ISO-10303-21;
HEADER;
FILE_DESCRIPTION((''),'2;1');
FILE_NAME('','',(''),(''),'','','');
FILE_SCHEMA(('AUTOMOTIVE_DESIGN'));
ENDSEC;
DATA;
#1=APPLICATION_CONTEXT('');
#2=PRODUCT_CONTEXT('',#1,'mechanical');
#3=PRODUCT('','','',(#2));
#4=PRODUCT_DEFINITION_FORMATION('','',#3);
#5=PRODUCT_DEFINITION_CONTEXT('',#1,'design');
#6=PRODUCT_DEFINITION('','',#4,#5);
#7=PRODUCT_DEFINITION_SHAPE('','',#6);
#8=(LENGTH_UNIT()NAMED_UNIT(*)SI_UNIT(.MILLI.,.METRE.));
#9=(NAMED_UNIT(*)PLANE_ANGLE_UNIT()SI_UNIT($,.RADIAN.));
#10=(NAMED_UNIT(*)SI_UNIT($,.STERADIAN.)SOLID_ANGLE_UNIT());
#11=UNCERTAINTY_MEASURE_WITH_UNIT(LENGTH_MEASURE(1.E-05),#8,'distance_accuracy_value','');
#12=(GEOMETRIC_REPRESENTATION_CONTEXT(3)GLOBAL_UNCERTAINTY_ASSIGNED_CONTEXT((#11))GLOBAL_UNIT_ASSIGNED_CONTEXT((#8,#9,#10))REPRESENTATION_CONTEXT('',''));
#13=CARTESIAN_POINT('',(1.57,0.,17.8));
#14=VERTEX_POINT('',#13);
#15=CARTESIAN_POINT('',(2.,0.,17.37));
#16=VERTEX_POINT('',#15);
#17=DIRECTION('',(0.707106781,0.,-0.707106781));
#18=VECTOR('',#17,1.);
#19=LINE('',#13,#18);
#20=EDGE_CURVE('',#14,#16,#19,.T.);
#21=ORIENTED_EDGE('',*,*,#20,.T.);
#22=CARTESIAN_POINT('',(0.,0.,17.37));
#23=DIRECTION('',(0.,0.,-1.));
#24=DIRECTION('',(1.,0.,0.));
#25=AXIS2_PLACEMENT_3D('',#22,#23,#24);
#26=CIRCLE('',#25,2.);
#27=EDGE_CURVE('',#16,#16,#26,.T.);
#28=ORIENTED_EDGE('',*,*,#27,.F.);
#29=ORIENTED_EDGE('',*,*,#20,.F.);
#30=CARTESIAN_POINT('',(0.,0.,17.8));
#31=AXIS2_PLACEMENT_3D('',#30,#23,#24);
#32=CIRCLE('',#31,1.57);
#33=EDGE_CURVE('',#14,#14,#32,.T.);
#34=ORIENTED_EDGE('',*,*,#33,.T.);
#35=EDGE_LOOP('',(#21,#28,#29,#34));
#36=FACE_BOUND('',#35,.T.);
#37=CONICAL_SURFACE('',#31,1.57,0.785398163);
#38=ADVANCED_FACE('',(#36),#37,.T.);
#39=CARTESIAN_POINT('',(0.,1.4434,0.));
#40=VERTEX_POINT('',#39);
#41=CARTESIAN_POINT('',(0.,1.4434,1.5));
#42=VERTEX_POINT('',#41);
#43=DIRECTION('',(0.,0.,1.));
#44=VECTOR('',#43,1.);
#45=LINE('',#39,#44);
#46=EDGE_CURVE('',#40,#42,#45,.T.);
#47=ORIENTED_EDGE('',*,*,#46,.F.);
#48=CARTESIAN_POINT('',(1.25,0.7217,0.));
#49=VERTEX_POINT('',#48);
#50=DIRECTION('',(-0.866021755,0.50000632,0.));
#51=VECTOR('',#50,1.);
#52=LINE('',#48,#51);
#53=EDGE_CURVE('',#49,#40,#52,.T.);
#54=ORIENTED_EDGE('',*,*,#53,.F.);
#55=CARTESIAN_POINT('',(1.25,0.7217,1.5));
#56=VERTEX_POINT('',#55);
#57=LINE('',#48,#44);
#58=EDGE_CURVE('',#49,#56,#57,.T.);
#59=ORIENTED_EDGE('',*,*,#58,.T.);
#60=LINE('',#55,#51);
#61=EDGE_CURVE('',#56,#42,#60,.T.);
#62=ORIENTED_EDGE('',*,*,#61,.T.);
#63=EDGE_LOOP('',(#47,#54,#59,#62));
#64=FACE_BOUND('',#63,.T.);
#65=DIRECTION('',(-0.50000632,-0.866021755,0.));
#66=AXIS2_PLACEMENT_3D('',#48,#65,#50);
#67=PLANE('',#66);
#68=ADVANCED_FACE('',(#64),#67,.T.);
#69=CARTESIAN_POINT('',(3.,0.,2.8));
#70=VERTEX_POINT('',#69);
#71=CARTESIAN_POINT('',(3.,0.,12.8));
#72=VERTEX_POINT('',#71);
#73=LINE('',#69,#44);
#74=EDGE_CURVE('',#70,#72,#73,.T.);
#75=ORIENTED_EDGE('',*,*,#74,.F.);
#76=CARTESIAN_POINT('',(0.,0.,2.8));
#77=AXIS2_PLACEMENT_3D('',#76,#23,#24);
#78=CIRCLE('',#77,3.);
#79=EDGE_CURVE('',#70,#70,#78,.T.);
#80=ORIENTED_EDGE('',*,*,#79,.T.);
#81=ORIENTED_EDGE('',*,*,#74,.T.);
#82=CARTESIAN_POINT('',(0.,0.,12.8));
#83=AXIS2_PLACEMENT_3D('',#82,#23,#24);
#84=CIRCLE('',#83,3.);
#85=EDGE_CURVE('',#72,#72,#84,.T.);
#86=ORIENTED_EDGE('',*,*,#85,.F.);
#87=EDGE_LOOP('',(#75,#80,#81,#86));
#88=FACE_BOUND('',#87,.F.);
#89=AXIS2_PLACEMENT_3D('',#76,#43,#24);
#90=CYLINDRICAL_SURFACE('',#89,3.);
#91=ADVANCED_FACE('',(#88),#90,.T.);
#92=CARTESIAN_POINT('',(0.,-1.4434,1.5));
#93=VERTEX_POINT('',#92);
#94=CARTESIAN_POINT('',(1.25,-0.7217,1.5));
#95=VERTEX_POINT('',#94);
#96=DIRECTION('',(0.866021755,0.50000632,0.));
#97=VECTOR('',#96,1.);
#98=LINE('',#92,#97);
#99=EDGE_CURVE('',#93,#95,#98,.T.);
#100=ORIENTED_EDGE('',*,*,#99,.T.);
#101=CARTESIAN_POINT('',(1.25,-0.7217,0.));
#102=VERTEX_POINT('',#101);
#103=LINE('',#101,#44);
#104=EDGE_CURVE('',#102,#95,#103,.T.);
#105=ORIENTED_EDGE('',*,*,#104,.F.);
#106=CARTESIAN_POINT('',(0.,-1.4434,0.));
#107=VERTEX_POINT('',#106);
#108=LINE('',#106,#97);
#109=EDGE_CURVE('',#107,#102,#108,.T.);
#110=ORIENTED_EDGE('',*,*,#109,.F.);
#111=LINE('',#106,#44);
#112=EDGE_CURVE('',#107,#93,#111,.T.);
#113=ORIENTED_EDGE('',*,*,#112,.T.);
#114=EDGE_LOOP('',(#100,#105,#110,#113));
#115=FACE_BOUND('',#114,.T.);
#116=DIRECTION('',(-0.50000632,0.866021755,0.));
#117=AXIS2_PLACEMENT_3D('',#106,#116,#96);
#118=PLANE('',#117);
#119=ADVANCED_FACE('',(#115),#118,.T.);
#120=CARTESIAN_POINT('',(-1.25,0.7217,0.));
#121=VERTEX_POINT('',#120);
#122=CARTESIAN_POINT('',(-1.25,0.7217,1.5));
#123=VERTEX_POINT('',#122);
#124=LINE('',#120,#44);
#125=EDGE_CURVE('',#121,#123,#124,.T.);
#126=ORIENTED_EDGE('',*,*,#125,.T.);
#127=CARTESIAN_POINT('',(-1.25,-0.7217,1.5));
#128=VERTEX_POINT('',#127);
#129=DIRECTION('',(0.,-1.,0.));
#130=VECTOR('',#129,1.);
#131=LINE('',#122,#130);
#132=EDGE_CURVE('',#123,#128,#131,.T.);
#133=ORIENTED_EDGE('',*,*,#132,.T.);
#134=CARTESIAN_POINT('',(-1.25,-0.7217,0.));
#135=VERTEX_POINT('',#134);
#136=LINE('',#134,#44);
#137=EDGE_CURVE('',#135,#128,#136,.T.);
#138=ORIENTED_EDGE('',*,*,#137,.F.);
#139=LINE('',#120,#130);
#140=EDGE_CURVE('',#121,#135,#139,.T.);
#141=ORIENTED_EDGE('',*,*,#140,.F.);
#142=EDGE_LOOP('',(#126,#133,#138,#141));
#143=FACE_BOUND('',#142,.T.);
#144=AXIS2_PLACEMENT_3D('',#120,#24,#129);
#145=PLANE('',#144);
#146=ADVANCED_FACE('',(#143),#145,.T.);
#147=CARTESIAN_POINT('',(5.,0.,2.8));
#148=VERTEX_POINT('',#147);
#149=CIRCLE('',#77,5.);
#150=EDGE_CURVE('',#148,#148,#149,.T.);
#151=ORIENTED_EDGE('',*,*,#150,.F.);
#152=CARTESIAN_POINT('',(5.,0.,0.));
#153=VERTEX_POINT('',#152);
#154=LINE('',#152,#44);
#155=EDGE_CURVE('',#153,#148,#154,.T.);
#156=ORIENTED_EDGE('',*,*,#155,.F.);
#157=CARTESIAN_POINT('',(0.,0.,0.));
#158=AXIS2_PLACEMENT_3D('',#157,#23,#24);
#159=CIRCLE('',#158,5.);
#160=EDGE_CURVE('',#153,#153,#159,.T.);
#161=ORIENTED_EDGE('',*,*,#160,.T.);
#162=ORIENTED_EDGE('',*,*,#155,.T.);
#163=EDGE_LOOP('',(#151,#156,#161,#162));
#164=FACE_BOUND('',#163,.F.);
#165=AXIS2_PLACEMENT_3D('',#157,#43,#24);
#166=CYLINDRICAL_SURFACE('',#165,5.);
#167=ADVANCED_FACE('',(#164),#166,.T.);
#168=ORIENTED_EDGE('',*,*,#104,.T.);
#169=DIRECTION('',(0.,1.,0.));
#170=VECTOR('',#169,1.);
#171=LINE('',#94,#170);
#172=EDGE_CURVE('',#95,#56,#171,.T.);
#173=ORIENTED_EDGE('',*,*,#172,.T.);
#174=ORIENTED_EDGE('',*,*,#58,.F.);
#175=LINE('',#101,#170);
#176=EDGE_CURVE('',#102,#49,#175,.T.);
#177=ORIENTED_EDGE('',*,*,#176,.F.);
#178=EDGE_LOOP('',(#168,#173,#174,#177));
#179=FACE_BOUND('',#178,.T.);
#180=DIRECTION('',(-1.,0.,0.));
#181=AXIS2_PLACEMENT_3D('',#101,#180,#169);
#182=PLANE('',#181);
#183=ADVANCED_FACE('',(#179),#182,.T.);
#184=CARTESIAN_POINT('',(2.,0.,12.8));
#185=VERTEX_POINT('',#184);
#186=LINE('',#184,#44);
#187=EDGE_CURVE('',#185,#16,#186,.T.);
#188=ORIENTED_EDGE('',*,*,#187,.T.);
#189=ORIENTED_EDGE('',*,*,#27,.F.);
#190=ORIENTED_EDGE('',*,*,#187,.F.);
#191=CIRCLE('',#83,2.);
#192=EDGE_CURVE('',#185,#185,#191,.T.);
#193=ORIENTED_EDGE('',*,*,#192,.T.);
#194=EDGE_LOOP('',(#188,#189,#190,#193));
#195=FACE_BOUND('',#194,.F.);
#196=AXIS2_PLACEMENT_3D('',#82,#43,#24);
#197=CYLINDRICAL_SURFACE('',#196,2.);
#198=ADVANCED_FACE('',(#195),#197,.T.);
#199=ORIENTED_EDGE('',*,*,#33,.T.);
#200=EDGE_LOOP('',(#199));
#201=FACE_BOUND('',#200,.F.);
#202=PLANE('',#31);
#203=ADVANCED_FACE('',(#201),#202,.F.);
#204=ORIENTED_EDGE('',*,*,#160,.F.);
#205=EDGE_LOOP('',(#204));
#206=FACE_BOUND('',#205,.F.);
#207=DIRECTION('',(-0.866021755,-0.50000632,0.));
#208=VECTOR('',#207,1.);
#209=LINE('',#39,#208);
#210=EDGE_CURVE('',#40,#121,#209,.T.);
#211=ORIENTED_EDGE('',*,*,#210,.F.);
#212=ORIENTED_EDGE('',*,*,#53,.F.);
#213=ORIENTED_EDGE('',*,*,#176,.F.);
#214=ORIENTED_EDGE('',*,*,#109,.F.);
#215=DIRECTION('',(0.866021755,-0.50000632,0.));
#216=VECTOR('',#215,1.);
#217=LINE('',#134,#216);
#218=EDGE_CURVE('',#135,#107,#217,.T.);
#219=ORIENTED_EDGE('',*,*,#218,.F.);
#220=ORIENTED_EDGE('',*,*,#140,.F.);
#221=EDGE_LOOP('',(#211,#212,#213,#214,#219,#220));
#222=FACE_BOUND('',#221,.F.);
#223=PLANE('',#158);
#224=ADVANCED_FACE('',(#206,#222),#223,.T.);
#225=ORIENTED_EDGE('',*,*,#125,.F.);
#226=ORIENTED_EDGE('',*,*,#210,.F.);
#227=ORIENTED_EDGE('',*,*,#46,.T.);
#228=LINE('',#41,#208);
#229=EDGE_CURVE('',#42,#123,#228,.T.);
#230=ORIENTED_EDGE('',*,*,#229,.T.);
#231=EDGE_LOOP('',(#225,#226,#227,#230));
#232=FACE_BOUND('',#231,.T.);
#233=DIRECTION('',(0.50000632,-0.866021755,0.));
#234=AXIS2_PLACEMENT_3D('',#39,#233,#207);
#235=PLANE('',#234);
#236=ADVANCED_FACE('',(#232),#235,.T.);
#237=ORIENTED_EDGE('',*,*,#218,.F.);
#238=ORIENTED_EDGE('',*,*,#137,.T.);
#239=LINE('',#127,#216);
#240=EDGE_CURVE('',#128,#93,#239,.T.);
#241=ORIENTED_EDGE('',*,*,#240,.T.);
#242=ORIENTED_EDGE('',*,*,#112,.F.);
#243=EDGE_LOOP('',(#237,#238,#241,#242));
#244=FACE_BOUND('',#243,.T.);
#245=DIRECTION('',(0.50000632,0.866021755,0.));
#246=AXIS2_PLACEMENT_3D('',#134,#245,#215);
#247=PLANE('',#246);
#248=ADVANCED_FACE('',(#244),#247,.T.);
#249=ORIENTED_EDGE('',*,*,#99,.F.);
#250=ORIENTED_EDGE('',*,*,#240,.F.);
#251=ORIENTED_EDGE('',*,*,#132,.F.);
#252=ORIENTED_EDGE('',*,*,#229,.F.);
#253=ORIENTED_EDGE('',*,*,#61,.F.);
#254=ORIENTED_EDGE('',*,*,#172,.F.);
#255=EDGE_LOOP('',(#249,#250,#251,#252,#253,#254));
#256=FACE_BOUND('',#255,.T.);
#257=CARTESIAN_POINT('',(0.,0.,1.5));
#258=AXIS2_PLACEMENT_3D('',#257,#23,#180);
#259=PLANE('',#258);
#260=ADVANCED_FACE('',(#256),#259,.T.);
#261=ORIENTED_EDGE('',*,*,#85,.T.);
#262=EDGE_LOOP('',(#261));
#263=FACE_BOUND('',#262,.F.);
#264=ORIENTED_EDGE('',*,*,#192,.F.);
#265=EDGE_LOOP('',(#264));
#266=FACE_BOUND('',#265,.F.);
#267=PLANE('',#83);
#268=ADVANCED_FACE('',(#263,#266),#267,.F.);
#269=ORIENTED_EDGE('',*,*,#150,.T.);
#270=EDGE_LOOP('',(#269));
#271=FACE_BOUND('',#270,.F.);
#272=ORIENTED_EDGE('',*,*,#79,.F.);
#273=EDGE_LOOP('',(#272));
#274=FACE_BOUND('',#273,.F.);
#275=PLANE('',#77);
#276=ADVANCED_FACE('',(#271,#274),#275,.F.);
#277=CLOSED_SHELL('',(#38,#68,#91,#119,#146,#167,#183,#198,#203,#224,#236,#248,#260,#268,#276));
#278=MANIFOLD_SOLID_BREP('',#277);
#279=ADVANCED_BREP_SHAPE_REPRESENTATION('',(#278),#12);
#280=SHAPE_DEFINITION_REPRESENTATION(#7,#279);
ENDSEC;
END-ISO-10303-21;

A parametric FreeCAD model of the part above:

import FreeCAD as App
import Part
import Sketcher
from FreeCAD import Vector
Q = App.Units.Quantity


def add_polygon(sketch, points):
    """Adds a closed chain of lines whose ends are joined by coincident constraints."""
    first, n = sketch.GeometryCount, len(points)
    for a, b in zip(points, points[1:] + points[:1]):
        sketch.addGeometry(Part.LineSegment(App.Vector(*a, 0), App.Vector(*b, 0)), False)
    for i in range(n):
        sketch.addConstraint(Sketcher.Constraint("Coincident", first + i, 2, first + (i + 1) % n, 1))

doc = App.newDocument("Part")
body = doc.addObject("PartDesign::Body", "Body")

# Sketch on XZ plane
sketch1 = body.newObject("Sketcher::SketchObject", "Sketch")
sketch1.AttachmentSupport = (doc.getObject("XZ_Plane"), [""])
sketch1.MapMode = "FlatFace"
add_polygon(sketch1, [(5, 0), (0, 0), (0, 17.8), (1.6, 17.8), (2, 17.4), (2, 12.8), (3, 12.8), (3, 2.8), (5, 2.8)])  # lines 0-8
sketch1.addConstraint(Sketcher.Constraint("Horizontal", 0))
sketch1.addConstraint(Sketcher.Constraint("Vertical", 1))
sketch1.addConstraint(Sketcher.Constraint("Horizontal", 2))
sketch1.addConstraint(Sketcher.Constraint("Vertical", 4))
sketch1.addConstraint(Sketcher.Constraint("Horizontal", 5))
sketch1.addConstraint(Sketcher.Constraint("Vertical", 6))
sketch1.addConstraint(Sketcher.Constraint("Horizontal", 7))
sketch1.addConstraint(Sketcher.Constraint("Vertical", 8))
sketch1.addConstraint(Sketcher.Constraint("Coincident", 0, 2, -1, 1))
sketch1.addConstraint(Sketcher.Constraint("DistanceX", 0, 2, 0, 1, Q("5 mm")))
sketch1.addConstraint(Sketcher.Constraint("DistanceY", 6, 2, 6, 1, Q("10 mm")))
sketch1.addConstraint(Sketcher.Constraint("DistanceY", 8, 2, 8, 1, Q("2.8 mm")))
sketch1.addConstraint(Sketcher.Constraint("DistanceY", 4, 2, 2, 2, Q("5 mm")))
sketch1.addConstraint(Sketcher.Constraint("DistanceX", 5, 1, 5, 2, Q("1 mm")))
sketch1.addConstraint(Sketcher.Constraint("DistanceX", 7, 1, 7, 2, Q("2 mm")))
sketch1.addConstraint(Sketcher.Constraint("Angle", 3, Q("-45 deg")))
sketch1.addConstraint(Sketcher.Constraint("DistanceX", 2, 2, 3, 2, Q("0.43 mm")))
revolution = body.newObject("PartDesign::Revolution", "Revolution")
revolution.Profile = sketch1
revolution.ReferenceAxis = (sketch1, ["V_Axis"])
revolution.Angle = 360

# Sketch on XY plane
sketch2 = body.newObject("Sketcher::SketchObject", "Sketch001")
sketch2.AttachmentSupport = (doc.getObject("XY_Plane"), [""])
sketch2.MapMode = "FlatFace"
add_polygon(sketch2, [(1.2, -0.7), (0, -1.4), (-1.2, -0.7), (-1.2, 0.7), (0, 1.4), (1.2, 0.7)])  # lines 0-5
sketch2.addConstraint(Sketcher.Constraint("Vertical", 2))
sketch2.addConstraint(Sketcher.Constraint("Vertical", 5))
sketch2.addConstraint(Sketcher.Constraint("Symmetric", 0, 2, 3, 2, -1, 1))
sketch2.addConstraint(Sketcher.Constraint("Symmetric", 1, 2, 4, 2, -1, 1))
sketch2.addConstraint(Sketcher.Constraint("PointOnObject", 0, 2, -2))
sketch2.addConstraint(Sketcher.Constraint("Parallel", 0, 3))
sketch2.addConstraint(Sketcher.Constraint("Horizontal", 2, 2, 4, 2))
sketch2.addConstraint(Sketcher.Constraint("DistanceX", 2, 2, 4, 2, Q("2.5 mm")))
sketch2.addConstraint(Sketcher.Constraint("Angle", 0, Q("-149.9996 deg")))
sketch2.addConstraint(Sketcher.Constraint("DistanceY", 2, 1, 2, 2, Q("1.4434 mm")))
pocket1 = body.newObject("PartDesign::Pocket", "Pocket")
pocket1.Profile = sketch2
pocket1.Length = 1.5
pocket1.Reversed = True

doc.recompute()
